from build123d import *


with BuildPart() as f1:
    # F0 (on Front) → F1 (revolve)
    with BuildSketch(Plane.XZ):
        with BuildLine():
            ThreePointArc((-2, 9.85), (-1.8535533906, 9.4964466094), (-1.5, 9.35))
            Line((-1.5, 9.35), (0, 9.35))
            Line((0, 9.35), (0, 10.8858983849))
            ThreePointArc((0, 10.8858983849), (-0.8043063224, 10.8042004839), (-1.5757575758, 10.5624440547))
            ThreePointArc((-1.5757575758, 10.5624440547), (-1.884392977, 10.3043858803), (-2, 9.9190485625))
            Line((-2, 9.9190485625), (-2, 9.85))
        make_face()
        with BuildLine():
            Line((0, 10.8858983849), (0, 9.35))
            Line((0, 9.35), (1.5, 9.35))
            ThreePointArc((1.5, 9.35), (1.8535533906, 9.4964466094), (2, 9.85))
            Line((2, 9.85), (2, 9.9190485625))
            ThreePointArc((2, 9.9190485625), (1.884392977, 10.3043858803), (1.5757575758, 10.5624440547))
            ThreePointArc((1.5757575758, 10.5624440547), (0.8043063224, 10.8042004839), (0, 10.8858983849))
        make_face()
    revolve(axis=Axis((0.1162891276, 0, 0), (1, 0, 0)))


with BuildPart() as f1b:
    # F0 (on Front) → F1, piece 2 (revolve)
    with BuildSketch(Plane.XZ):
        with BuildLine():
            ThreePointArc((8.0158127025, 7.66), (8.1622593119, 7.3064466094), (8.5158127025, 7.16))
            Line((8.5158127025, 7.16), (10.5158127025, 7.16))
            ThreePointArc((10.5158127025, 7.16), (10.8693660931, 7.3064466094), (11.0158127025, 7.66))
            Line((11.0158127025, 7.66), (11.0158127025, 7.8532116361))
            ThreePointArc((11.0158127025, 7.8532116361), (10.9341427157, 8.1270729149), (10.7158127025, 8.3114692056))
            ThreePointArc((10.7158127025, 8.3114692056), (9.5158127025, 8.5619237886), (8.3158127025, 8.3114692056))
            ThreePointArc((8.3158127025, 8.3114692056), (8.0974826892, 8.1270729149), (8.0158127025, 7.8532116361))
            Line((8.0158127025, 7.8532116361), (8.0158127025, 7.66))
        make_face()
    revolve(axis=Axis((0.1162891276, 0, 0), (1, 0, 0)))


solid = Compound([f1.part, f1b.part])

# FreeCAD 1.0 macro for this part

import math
import FreeCAD as App
import Part
import Sketcher

doc = App.newDocument("Part")
body = doc.addObject("PartDesign::Body", "Body")

# Sketch on XZ plane
sketch1 = body.newObject("Sketcher::SketchObject", "Sketch")
sketch1.AttachmentSupport = (doc.getObject("XZ_Plane"), [""])
sketch1.MapMode = "FlatFace"
sketch1.addGeometry([
    Part.ArcOfCircle(Part.Circle(App.Vector(-1.5, 9.85, 0), App.Vector(0, 0, 1), 0.5), math.radians(180), math.radians(270)),  # 0
    Part.LineSegment(App.Vector(-1.5, 9.35, 0), App.Vector(1.5, 9.35, 0)),  # 1
    Part.ArcOfCircle(Part.Circle(App.Vector(1.5, 9.85, 0), App.Vector(0, 0, 1), 0.5), math.radians(-90), math.radians(0)),  # 2
    Part.LineSegment(App.Vector(2, 9.85, 0), App.Vector(2, 9.92, 0)),  # 3
    Part.ArcOfCircle(Part.Circle(App.Vector(1.3, 9.92, 0), App.Vector(0, 0, 1), 0.7), math.radians(0), math.radians(67)),  # 4
    Part.ArcOfCircle(Part.Circle(App.Vector(0, 6.89, 0), App.Vector(0, 0, 1), 4), math.radians(67), math.radians(90)),  # 5
    Part.ArcOfCircle(Part.Circle(App.Vector(0, 6.89, 0), App.Vector(0, 0, 1), 4), math.radians(90), math.radians(113)),  # 6
    Part.ArcOfCircle(Part.Circle(App.Vector(-1.3, 9.92, 0), App.Vector(0, 0, 1), 0.7), math.radians(113), math.radians(180)),  # 7
    Part.LineSegment(App.Vector(-2, 9.92, 0), App.Vector(-2, 9.85, 0)),  # 8
], False)
sketch1.addConstraint([
    Sketcher.Constraint("Tangent", 0, 2, 1, 1),
    Sketcher.Constraint("Tangent", 1, 2, 2, 1),
    Sketcher.Constraint("Tangent", 2, 2, 3, 1),
    Sketcher.Constraint("Tangent", 3, 2, 4, 1),
    Sketcher.Constraint("Tangent", 4, 2, 5, 1),
    Sketcher.Constraint("Tangent", 5, 2, 6, 1),
    Sketcher.Constraint("Tangent", 6, 2, 7, 1),
    Sketcher.Constraint("Tangent", 7, 2, 8, 1),
    Sketcher.Constraint("Tangent", 8, 2, 0, 1),
    Sketcher.Constraint("Horizontal", 1),
    Sketcher.Constraint("Vertical", 3),
    Sketcher.Constraint("Vertical", 8),
    Sketcher.Constraint("Equal", 0, 2),
    Sketcher.Constraint("Equal", 5, 6),
    Sketcher.Constraint("Equal", 4, 7),
    Sketcher.Constraint("Symmetric", 4, 3, 7, 3, -2),
    Sketcher.Constraint("PointOnObject", 5, 2, -2),
    Sketcher.Constraint("Radius", 5, 4.0),
    Sketcher.Constraint("Radius", 0, 0.5),
    Sketcher.Constraint("Radius", 4, 0.7),
    Sketcher.Constraint("DistanceX", 1, 1, 1, 2, 3.0),
    Sketcher.Constraint("DistanceY", -1, 1, 0, 3, 9.85),
    Sketcher.Constraint("DistanceY", 3, 1, 3, 2, 0.069049),
])
revolution = body.newObject("PartDesign::Revolution", "Revolution")
revolution.Profile = sketch1
revolution.ReferenceAxis = (sketch1, ["H_Axis"])
revolution.Angle = 360
body2 = doc.addObject("PartDesign::Body", "Body001")

# Sketch on XZ plane
sketch2 = body2.newObject("Sketcher::SketchObject", "Sketch001")
sketch2.AttachmentSupport = (doc.getObject("XZ_Plane001"), [""])
sketch2.MapMode = "FlatFace"
sketch2.addGeometry([
    Part.ArcOfCircle(Part.Circle(App.Vector(8.52, 7.66, 0), App.Vector(0, 0, 1), 0.5), math.radians(180), math.radians(270)),  # 0
    Part.LineSegment(App.Vector(8.52, 7.16, 0), App.Vector(10.52, 7.16, 0)),  # 1
    Part.ArcOfCircle(Part.Circle(App.Vector(10.52, 7.66, 0), App.Vector(0, 0, 1), 0.5), math.radians(-90), math.radians(0)),  # 2
    Part.LineSegment(App.Vector(11.02, 7.66, 0), App.Vector(11.02, 7.85, 0)),  # 3
    Part.ArcOfCircle(Part.Circle(App.Vector(10.52, 7.85, 0), App.Vector(0, 0, 1), 0.5), math.radians(0), math.radians(66)),  # 4
    Part.ArcOfCircle(Part.Circle(App.Vector(9.52, 5.56, 0), App.Vector(0, 0, 1), 3), math.radians(66), math.radians(114)),  # 5
    Part.ArcOfCircle(Part.Circle(App.Vector(8.52, 7.85, 0), App.Vector(0, 0, 1), 0.5), math.radians(114), math.radians(180)),  # 6
    Part.LineSegment(App.Vector(8.02, 7.85, 0), App.Vector(8.02, 7.66, 0)),  # 7
], False)
sketch2.addConstraint([
    Sketcher.Constraint("Tangent", 0, 2, 1, 1),
    Sketcher.Constraint("Tangent", 1, 2, 2, 1),
    Sketcher.Constraint("Tangent", 2, 2, 3, 1),
    Sketcher.Constraint("Tangent", 3, 2, 4, 1),
    Sketcher.Constraint("Tangent", 4, 2, 5, 1),
    Sketcher.Constraint("Tangent", 5, 2, 6, 1),
    Sketcher.Constraint("Tangent", 6, 2, 7, 1),
    Sketcher.Constraint("Tangent", 7, 2, 0, 1),
    Sketcher.Constraint("Horizontal", 1),
    Sketcher.Constraint("Vertical", 3),
    Sketcher.Constraint("Vertical", 7),
    Sketcher.Constraint("Equal", 0, 2),
    Sketcher.Constraint("Equal", 2, 4),
    Sketcher.Constraint("Equal", 4, 6),
    Sketcher.Constraint("Horizontal", 4, 3, 6, 3),
    Sketcher.Constraint("Radius", 5, 3.0),
    Sketcher.Constraint("Radius", 0, 0.5),
    Sketcher.Constraint("DistanceX", 1, 1, 1, 2, 2.0),
    Sketcher.Constraint("DistanceY", -1, 1, 0, 3, 7.66),
    Sketcher.Constraint("DistanceY", 3, 1, 3, 2, 0.193212),
    Sketcher.Constraint("DistanceX", -1, 1, 0, 3, 8.515813),
])
revolution2 = body2.newObject("PartDesign::Revolution", "Revolution001")
revolution2.Profile = sketch2
revolution2.ReferenceAxis = (sketch2, ["H_Axis"])
revolution2.Angle = 360

doc.recompute()
